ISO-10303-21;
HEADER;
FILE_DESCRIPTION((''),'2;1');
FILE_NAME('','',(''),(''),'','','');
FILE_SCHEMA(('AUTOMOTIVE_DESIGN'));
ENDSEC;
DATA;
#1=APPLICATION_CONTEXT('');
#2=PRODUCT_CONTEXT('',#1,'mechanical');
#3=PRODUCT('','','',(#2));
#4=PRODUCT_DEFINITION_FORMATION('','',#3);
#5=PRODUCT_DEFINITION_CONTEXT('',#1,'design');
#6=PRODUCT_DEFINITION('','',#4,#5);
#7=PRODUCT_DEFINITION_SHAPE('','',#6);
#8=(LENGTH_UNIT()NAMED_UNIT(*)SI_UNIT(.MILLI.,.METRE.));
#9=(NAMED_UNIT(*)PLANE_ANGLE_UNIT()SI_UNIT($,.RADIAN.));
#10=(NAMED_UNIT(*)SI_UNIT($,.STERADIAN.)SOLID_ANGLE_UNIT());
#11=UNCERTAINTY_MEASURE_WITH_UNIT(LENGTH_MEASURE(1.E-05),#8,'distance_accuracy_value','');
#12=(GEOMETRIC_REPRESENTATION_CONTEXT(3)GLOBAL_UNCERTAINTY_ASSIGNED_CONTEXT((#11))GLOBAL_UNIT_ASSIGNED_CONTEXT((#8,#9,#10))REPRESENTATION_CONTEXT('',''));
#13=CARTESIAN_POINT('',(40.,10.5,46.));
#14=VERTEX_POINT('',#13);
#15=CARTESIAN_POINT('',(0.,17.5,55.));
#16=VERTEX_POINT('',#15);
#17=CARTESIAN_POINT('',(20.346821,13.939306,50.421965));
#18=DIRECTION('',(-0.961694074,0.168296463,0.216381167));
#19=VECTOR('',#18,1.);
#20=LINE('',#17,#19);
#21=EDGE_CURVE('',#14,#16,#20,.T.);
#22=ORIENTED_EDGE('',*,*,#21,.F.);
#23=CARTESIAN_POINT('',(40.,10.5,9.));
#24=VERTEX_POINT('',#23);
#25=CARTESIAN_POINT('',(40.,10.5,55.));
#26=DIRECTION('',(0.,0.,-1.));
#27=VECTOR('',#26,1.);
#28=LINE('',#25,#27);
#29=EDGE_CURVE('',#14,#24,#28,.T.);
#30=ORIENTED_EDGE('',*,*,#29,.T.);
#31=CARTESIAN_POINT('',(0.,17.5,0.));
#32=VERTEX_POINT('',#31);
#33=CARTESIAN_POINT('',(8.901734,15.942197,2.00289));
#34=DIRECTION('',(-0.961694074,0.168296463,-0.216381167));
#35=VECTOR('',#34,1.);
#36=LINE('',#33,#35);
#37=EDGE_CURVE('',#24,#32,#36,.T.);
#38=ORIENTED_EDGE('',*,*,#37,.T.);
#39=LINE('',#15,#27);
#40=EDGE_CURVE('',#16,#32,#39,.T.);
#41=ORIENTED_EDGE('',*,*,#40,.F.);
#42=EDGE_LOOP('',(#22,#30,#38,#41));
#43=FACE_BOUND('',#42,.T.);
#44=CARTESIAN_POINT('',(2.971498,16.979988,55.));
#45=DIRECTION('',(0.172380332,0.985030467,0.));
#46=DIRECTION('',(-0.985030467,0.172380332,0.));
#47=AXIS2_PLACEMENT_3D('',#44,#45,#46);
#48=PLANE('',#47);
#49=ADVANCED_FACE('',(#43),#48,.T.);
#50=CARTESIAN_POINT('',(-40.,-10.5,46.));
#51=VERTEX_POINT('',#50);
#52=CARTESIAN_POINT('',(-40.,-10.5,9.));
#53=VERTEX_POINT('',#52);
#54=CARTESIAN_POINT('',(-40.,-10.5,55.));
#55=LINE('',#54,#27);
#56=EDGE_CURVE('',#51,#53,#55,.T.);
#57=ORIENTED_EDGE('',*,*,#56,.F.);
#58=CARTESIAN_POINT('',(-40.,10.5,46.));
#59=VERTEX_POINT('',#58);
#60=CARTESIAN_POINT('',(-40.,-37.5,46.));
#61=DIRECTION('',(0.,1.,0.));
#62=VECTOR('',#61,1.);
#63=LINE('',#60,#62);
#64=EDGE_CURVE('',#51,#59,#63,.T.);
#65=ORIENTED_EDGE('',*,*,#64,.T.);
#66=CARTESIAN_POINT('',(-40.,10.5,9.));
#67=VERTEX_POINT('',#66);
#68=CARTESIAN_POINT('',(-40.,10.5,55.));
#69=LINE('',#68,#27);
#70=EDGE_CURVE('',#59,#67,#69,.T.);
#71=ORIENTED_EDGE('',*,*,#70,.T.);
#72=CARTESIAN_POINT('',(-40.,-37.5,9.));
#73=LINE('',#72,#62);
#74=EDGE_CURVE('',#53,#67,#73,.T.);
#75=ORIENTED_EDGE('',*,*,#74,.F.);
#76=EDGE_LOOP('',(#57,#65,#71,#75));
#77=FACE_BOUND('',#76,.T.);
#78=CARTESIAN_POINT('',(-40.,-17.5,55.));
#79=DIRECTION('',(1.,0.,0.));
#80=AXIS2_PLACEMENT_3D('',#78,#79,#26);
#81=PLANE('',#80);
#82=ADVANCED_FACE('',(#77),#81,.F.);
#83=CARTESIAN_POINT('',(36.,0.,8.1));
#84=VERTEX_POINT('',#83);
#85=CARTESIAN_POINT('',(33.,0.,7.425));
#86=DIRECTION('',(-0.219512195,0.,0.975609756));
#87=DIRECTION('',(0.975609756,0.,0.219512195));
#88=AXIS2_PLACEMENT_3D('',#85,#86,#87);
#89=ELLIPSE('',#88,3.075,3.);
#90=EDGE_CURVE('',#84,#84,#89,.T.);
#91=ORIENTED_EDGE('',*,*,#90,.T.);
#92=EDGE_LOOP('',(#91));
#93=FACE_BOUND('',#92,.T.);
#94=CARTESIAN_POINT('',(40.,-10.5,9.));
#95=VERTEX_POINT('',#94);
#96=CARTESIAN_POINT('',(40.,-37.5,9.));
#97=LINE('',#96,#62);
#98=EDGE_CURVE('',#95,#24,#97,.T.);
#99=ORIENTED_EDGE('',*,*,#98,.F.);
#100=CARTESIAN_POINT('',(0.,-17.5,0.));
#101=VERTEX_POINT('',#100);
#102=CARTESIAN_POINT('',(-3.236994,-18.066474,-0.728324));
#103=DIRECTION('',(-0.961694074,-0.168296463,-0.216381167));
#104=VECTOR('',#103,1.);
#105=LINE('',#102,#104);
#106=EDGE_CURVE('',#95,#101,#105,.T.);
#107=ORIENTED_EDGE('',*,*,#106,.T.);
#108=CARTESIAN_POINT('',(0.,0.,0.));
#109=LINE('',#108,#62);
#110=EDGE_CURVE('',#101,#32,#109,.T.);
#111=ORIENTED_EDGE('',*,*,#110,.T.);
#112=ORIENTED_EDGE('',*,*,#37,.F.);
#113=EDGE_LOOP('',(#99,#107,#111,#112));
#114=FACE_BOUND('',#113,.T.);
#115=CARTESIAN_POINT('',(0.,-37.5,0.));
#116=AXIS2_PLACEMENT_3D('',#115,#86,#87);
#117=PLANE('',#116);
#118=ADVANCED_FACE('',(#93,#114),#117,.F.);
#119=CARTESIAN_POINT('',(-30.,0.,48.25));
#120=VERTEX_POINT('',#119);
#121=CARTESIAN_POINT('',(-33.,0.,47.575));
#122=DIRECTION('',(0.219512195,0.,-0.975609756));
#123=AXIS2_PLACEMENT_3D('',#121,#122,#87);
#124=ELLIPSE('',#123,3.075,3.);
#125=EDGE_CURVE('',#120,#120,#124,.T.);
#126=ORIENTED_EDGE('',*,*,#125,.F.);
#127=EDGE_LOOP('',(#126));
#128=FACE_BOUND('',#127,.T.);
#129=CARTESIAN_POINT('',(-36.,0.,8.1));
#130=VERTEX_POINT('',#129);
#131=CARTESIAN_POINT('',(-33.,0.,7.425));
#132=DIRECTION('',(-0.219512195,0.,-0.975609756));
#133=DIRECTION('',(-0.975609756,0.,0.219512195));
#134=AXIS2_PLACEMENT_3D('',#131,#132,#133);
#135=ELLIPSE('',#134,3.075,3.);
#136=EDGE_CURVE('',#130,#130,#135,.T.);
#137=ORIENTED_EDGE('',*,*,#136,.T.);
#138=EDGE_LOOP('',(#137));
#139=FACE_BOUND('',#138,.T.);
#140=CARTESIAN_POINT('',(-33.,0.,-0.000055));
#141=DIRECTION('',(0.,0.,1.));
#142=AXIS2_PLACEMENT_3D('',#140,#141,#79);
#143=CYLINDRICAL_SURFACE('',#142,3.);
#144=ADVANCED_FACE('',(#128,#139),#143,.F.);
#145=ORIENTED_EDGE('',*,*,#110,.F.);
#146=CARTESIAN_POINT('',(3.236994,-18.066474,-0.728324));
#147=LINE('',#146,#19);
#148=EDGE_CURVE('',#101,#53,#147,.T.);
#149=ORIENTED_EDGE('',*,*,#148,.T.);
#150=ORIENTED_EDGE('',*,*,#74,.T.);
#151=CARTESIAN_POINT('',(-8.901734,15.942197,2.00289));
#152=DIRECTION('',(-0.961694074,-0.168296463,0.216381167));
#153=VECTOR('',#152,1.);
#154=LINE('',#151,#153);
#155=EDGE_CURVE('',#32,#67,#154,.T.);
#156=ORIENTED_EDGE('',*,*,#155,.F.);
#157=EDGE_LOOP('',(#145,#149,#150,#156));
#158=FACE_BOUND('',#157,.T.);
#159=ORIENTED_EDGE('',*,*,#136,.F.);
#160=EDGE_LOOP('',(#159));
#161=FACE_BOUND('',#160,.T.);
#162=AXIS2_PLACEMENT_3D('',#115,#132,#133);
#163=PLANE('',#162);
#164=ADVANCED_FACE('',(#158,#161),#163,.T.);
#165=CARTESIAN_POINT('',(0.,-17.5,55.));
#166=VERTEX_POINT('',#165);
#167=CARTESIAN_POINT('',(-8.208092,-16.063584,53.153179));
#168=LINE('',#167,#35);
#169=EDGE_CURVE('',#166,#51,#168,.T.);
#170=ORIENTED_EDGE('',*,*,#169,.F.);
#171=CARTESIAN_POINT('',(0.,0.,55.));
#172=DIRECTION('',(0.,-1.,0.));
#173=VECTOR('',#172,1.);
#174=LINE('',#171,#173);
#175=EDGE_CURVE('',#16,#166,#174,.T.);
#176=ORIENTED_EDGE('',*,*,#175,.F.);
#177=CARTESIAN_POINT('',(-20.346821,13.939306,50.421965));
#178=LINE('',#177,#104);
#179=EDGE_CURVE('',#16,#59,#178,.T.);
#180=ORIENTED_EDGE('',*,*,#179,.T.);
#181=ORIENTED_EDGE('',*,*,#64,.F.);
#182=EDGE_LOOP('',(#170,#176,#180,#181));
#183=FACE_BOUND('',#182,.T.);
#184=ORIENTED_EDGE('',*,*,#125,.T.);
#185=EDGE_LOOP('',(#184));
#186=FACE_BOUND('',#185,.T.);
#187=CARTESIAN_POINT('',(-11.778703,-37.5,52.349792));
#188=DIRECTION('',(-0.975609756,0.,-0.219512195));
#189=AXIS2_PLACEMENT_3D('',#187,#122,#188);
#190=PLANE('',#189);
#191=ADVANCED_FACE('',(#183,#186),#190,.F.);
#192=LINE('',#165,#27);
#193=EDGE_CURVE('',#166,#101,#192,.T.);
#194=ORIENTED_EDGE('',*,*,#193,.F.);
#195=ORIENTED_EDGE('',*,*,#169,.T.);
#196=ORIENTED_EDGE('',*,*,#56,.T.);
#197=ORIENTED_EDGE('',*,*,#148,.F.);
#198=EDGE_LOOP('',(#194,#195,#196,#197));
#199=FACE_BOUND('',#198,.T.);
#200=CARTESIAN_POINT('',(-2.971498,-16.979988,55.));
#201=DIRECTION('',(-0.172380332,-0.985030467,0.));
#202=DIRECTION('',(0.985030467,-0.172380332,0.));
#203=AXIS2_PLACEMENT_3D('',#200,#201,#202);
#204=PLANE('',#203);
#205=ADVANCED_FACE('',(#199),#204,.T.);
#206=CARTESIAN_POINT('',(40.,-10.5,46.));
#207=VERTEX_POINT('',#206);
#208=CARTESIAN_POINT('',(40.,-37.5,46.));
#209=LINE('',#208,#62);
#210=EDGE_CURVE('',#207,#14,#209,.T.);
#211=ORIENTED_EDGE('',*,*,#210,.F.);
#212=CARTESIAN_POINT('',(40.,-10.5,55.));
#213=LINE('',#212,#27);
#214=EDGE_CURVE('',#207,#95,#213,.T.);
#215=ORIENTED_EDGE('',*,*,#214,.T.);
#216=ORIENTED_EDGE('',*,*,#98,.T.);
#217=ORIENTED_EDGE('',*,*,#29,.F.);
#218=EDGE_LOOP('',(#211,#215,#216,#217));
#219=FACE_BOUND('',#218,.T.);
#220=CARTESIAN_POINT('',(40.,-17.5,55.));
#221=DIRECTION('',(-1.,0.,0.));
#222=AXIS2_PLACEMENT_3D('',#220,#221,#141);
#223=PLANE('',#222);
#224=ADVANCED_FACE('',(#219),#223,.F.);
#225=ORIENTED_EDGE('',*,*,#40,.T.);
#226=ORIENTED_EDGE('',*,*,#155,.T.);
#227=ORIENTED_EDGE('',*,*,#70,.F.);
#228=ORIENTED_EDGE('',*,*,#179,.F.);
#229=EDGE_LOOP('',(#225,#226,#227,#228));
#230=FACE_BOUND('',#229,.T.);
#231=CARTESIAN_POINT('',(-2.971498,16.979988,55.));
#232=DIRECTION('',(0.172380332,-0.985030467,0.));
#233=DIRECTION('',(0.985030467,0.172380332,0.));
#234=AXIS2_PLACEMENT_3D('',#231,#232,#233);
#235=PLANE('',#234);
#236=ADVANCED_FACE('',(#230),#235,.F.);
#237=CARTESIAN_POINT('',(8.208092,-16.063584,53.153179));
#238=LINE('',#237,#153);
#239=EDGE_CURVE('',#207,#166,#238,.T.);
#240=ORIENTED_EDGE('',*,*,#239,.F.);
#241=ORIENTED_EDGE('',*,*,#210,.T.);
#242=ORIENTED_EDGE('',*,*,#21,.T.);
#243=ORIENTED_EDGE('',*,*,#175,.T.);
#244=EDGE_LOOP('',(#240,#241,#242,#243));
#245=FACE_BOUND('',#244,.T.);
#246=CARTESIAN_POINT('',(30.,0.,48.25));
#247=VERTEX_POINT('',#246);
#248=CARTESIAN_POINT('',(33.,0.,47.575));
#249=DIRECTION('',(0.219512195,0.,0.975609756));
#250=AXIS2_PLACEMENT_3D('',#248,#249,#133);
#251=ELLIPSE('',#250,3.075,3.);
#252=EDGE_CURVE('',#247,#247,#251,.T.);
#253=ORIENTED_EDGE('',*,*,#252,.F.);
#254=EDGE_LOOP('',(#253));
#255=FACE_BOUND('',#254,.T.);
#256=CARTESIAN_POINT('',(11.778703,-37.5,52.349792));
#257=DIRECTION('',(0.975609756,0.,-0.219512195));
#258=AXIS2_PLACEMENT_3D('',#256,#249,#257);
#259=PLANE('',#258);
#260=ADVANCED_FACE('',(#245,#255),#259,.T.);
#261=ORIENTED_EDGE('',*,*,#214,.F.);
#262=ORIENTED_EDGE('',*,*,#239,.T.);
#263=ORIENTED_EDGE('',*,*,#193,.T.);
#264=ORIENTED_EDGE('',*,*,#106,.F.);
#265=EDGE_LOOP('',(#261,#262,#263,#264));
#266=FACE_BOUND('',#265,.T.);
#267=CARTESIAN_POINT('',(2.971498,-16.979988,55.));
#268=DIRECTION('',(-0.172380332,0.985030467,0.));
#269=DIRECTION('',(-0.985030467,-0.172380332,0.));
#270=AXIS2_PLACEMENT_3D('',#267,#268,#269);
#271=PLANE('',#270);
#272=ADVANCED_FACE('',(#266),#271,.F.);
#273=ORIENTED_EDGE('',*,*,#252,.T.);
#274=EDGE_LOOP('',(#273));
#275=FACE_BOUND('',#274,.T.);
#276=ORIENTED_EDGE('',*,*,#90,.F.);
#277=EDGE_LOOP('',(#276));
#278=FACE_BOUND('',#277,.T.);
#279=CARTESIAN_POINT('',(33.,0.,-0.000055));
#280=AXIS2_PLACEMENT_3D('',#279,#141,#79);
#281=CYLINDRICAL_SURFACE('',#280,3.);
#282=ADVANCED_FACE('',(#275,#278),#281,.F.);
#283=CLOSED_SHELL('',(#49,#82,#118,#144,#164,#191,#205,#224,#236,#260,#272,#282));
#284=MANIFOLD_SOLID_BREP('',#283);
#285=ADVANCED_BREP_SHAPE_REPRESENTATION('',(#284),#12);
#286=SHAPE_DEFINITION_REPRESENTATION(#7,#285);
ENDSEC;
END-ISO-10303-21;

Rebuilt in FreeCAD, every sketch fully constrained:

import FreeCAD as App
import Part
import Sketcher
from FreeCAD import Vector
Q = App.Units.Quantity

doc = App.newDocument("Part")
body = doc.addObject("PartDesign::Body", "Body")

# Sketch on XY plane
sketch1 = doc.addObject("Sketcher::SketchObject", "Sketch")
body.addObject(sketch1)
sketch1.AttachmentSupport = (doc.XY_Plane, [""])
sketch1.MapMode = "FlatFace"
sketch1.addGeometry([
    Part.LineSegment(Vector(-40, 18, 0), Vector(-40, -18, 0)),
    Part.LineSegment(Vector(-40, -18, 0), Vector(40, -18, 0)),
    Part.LineSegment(Vector(40, -18, 0), Vector(40, 18, 0)),
    Part.LineSegment(Vector(40, 18, 0), Vector(-40, 18, 0)),
], False)
sketch1.addConstraint([
    Sketcher.Constraint("Coincident", 0, 2, 1, 1),
    Sketcher.Constraint("Coincident", 1, 2, 2, 1),
    Sketcher.Constraint("Coincident", 2, 2, 3, 1),
    Sketcher.Constraint("Coincident", 3, 2, 0, 1),
    Sketcher.Constraint("Vertical", 0),
    Sketcher.Constraint("Horizontal", 1),
    Sketcher.Constraint("Vertical", 2),
    Sketcher.Constraint("Horizontal", 3),
    Sketcher.Constraint("Symmetric", 0, 2, 2, 2, -1, 1),
    Sketcher.Constraint("DistanceX", 1, 1, 1, 2, Q("80 mm")),
    Sketcher.Constraint("DistanceY", 0, 2, 0, 1, Q("35 mm")),
])
pad1 = doc.addObject("PartDesign::Pad", "Pad")
body.addObject(pad1)
pad1.Profile = sketch1
pad1.Length = 55

# Sketch on XZ plane
sketch2 = doc.addObject("Sketcher::SketchObject", "Sketch001")
body.addObject(sketch2)
sketch2.AttachmentSupport = (doc.XZ_Plane, [""])
sketch2.MapMode = "FlatFace"
sketch2.AttachmentOffset = App.Placement(Vector(0, 0, -17.5), App.Rotation())
sketch2.addGeometry([
    Part.LineSegment(Vector(-40, 55, 0), Vector(0, 55, 0)),  # 0
    Part.LineSegment(Vector(0, 55, 0), Vector(-40, 46, 0)),  # 1
    Part.LineSegment(Vector(-40, 46, 0), Vector(-40, 55, 0)),  # 2
    Part.LineSegment(Vector(40, 46, 0), Vector(0, 55, 0)),  # 3
    Part.LineSegment(Vector(0, 55, 0), Vector(40, 55, 0)),  # 4
    Part.LineSegment(Vector(40, 55, 0), Vector(40, 46, 0)),  # 5
    Part.LineSegment(Vector(0, 0, 0), Vector(40, 9, 0)),  # 6
    Part.LineSegment(Vector(40, 9, 0), Vector(40, 0, 0)),  # 7
    Part.LineSegment(Vector(40, 0, 0), Vector(0, 0, 0)),  # 8
    Part.LineSegment(Vector(-40, 0, 0), Vector(-40, 9, 0)),  # 9
    Part.LineSegment(Vector(-40, 9, 0), Vector(0, 0, 0)),  # 10
    Part.LineSegment(Vector(0, 0, 0), Vector(-40, 0, 0)),  # 11
], False)
sketch2.addConstraint([
    Sketcher.Constraint("Coincident", 0, 2, 1, 1),
    Sketcher.Constraint("Coincident", 1, 2, 2, 1),
    Sketcher.Constraint("Coincident", 2, 2, 0, 1),
    Sketcher.Constraint("Coincident", 3, 2, 4, 1),
    Sketcher.Constraint("Coincident", 4, 2, 5, 1),
    Sketcher.Constraint("Coincident", 5, 2, 3, 1),
    Sketcher.Constraint("Coincident", 6, 2, 7, 1),
    Sketcher.Constraint("Coincident", 7, 2, 8, 1),
    Sketcher.Constraint("Coincident", 8, 2, 6, 1),
    Sketcher.Constraint("Coincident", 9, 2, 10, 1),
    Sketcher.Constraint("Coincident", 10, 2, 11, 1),
    Sketcher.Constraint("Coincident", 11, 2, 9, 1),
    Sketcher.Constraint("Horizontal", 0),
    Sketcher.Constraint("Vertical", 2),
    Sketcher.Constraint("Horizontal", 4),
    Sketcher.Constraint("Vertical", 5),
    Sketcher.Constraint("Vertical", 7),
    Sketcher.Constraint("Horizontal", 8),
    Sketcher.Constraint("Vertical", 9),
    Sketcher.Constraint("Horizontal", 11),
    Sketcher.Constraint("Coincident", 8, 2, -1, 1),
    Sketcher.Constraint("Coincident", 10, 2, -1, 1),
    Sketcher.Constraint("Coincident", 3, 2, 0, 2),
    Sketcher.Constraint("Symmetric", 1, 2, 5, 2, -2),
    Sketcher.Constraint("Symmetric", 6, 2, 9, 2, -2),
    Sketcher.Constraint("PointOnObject", 0, 2, -2),
    Sketcher.Constraint("Parallel", 1, 6),
    Sketcher.Constraint("Vertical", 5, 2, 6, 2),
    Sketcher.Constraint("DistanceX", 0, 1, 0, 2, Q("40 mm")),
    Sketcher.Constraint("DistanceY", 2, 1, 2, 2, Q("9 mm")),
    Sketcher.Constraint("DistanceY", -1, 1, 0, 2, Q("55 mm")),
])
pocket1 = doc.addObject("PartDesign::Pocket", "Pocket")
body.addObject(pocket1)
pocket1.Profile = sketch2
pocket1.Length = 55
pocket1.Reversed = True

# Sketch on XY plane
sketch3 = doc.addObject("Sketcher::SketchObject", "Sketch002")
body.addObject(sketch3)
sketch3.AttachmentSupport = (doc.XY_Plane, [""])
sketch3.MapMode = "FlatFace"
sketch3.addGeometry([
    Part.LineSegment(Vector(40, 10, 0), Vector(40, 18, 0)),  # 0
    Part.LineSegment(Vector(40, 18, 0), Vector(0, 18, 0)),  # 1
    Part.LineSegment(Vector(0, 18, 0), Vector(40, 10, 0)),  # 2
    Part.LineSegment(Vector(0, 18, 0), Vector(-40, 18, 0)),  # 3
    Part.LineSegment(Vector(-40, 18, 0), Vector(-40, 10, 0)),  # 4
    Part.LineSegment(Vector(-40, 10, 0), Vector(0, 18, 0)),  # 5
    Part.LineSegment(Vector(0, -18, 0), Vector(40, -18, 0)),  # 6
    Part.LineSegment(Vector(40, -18, 0), Vector(40, -10, 0)),  # 7
    Part.LineSegment(Vector(40, -10, 0), Vector(0, -18, 0)),  # 8
    Part.LineSegment(Vector(-40, -10, 0), Vector(-40, -18, 0)),  # 9
    Part.LineSegment(Vector(-40, -18, 0), Vector(0, -18, 0)),  # 10
    Part.LineSegment(Vector(0, -18, 0), Vector(-40, -10, 0)),  # 11
], False)
sketch3.addConstraint([
    Sketcher.Constraint("Coincident", 0, 2, 1, 1),
    Sketcher.Constraint("Coincident", 1, 2, 2, 1),
    Sketcher.Constraint("Coincident", 2, 2, 0, 1),
    Sketcher.Constraint("Coincident", 3, 2, 4, 1),
    Sketcher.Constraint("Coincident", 4, 2, 5, 1),
    Sketcher.Constraint("Coincident", 5, 2, 3, 1),
    Sketcher.Constraint("Coincident", 6, 2, 7, 1),
    Sketcher.Constraint("Coincident", 7, 2, 8, 1),
    Sketcher.Constraint("Coincident", 8, 2, 6, 1),
    Sketcher.Constraint("Coincident", 9, 2, 10, 1),
    Sketcher.Constraint("Coincident", 10, 2, 11, 1),
    Sketcher.Constraint("Coincident", 11, 2, 9, 1),
    Sketcher.Constraint("Vertical", 0),
    Sketcher.Constraint("Horizontal", 1),
    Sketcher.Constraint("Horizontal", 3),
    Sketcher.Constraint("Vertical", 4),
    Sketcher.Constraint("Horizontal", 6),
    Sketcher.Constraint("Vertical", 7),
    Sketcher.Constraint("Vertical", 9),
    Sketcher.Constraint("Horizontal", 10),
    Sketcher.Constraint("Coincident", 5, 2, 1, 2),
    Sketcher.Constraint("Coincident", 10, 2, 8, 2),
    Sketcher.Constraint("Symmetric", 3, 2, 6, 2, -1, 1),
    Sketcher.Constraint("Symmetric", 2, 2, 11, 2, -1, 1),
    Sketcher.Constraint("Symmetric", 2, 2, 4, 2, -2),
    Sketcher.Constraint("PointOnObject", 1, 2, -2),
    Sketcher.Constraint("PointOnObject", 8, 2, -2),
    Sketcher.Constraint("Parallel", 5, 8),
    Sketcher.Constraint("DistanceX", 1, 2, 1, 1, Q("40 mm")),
    Sketcher.Constraint("DistanceY", 0, 1, 0, 2, Q("7 mm")),
    Sketcher.Constraint("DistanceY", 6, 2, 2, 2, Q("28 mm")),
])
pocket2 = doc.addObject("PartDesign::Pocket", "Pocket001")
body.addObject(pocket2)
pocket2.Profile = sketch3
pocket2.Type = "ThroughAll"
pocket2.Midplane = True

# Sketch on XY plane
sketch4 = doc.addObject("Sketcher::SketchObject", "Sketch003")
body.addObject(sketch4)
sketch4.AttachmentSupport = (doc.XY_Plane, [""])
sketch4.MapMode = "FlatFace"
sketch4.addGeometry([
    Part.Circle(Vector(-33, 0, 0), Vector(0, 0, 1), 3),
    Part.Circle(Vector(33, 0, 0), Vector(0, 0, 1), 3),
], False)
sketch4.addConstraint([
    Sketcher.Constraint("Equal", 0, 1),
    Sketcher.Constraint("Symmetric", 0, 3, 1, 3, -1, 1),
    Sketcher.Constraint("PointOnObject", 0, 3, -1),
    Sketcher.Constraint("Diameter", 0, Q("6 mm")),
    Sketcher.Constraint("DistanceX", 0, 3, -1, 1, Q("33 mm")),
])
pocket3 = doc.addObject("PartDesign::Pocket", "Pocket002")
body.addObject(pocket3)
pocket3.Profile = sketch4
pocket3.Type = "ThroughAll"
pocket3.Midplane = True

doc.recompute()
